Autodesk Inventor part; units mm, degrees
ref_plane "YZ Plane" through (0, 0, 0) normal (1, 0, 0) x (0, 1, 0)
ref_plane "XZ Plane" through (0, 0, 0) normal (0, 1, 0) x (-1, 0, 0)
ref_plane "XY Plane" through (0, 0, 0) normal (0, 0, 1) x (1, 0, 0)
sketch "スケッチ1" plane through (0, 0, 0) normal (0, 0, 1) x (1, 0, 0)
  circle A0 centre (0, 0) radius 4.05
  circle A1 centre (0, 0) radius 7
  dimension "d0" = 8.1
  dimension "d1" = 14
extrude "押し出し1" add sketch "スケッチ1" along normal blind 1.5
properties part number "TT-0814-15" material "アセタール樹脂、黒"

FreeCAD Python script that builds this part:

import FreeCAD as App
import Part
import Sketcher

doc = App.newDocument("Part")
body = doc.addObject("PartDesign::Body", "Body")

# Sketch on XY plane
sketch1 = body.newObject("Sketcher::SketchObject", "Sketch")
sketch1.AttachmentSupport = (doc.getObject("XY_Plane"), [""])
sketch1.MapMode = "FlatFace"
sketch1.addGeometry(Part.Circle(App.Vector(0, 0, 0), App.Vector(0, 0, 1), 7), False)
sketch1.addGeometry(Part.Circle(App.Vector(0, 0, 0), App.Vector(0, 0, 1), 4), False)
sketch1.addConstraint(Sketcher.Constraint("Coincident", 0, 3, -1, 1))
sketch1.addConstraint(Sketcher.Constraint("Coincident", 1, 3, -1, 1))
sketch1.addConstraint(Sketcher.Constraint("Diameter", 0, 14.0))
sketch1.addConstraint(Sketcher.Constraint("Diameter", 1, 8.1))
pad1 = body.newObject("PartDesign::Pad", "Pad")
pad1.Profile = sketch1
pad1.Length = 1.5

doc.recompute()
